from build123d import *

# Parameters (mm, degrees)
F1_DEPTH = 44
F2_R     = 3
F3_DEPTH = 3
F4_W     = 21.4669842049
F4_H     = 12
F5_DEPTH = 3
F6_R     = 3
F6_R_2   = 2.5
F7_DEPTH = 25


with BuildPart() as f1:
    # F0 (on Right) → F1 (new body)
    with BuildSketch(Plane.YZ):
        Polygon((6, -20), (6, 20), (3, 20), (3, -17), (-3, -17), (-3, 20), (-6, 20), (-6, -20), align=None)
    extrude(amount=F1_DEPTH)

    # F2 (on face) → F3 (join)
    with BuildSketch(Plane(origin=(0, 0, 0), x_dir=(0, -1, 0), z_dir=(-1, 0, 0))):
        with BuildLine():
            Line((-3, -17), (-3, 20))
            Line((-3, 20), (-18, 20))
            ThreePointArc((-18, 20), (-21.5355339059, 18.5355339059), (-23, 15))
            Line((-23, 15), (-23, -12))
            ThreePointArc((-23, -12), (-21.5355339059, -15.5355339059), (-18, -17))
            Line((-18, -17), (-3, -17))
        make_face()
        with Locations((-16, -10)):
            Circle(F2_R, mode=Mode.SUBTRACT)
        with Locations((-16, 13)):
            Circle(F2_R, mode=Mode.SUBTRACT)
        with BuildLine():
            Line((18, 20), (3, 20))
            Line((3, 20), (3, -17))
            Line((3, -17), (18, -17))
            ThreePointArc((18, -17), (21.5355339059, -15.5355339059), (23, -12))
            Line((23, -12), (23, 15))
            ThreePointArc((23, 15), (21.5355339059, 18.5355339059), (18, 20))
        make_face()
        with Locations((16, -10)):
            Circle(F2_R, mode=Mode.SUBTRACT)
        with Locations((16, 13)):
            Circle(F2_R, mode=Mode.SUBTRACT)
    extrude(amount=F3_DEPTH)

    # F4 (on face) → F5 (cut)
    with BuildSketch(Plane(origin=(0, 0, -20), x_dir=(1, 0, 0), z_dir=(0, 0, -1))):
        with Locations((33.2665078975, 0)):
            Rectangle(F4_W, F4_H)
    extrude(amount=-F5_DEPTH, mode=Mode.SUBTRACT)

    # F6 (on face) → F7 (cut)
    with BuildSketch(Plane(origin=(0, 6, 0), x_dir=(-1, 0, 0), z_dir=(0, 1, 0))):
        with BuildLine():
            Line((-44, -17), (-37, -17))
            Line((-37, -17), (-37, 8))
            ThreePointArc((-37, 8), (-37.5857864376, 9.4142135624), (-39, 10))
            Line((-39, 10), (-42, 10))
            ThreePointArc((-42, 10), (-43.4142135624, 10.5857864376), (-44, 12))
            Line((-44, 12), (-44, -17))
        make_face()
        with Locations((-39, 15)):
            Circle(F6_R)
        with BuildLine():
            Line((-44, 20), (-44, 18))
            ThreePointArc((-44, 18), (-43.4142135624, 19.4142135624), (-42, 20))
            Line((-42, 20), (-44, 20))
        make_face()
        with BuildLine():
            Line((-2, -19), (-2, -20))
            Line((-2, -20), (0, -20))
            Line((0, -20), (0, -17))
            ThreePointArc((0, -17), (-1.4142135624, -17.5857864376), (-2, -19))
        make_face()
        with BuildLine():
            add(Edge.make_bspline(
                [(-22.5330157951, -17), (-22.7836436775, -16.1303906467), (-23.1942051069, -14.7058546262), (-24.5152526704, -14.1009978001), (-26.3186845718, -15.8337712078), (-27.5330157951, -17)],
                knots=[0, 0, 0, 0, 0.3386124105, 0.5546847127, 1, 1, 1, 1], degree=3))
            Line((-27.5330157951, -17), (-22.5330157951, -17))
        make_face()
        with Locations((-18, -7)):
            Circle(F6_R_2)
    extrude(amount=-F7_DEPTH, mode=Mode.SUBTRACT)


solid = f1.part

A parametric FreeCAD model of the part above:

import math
import FreeCAD as App
import Part
import Sketcher

V = App.Vector

doc = App.newDocument("Part")
params = doc.addObject("Spreadsheet::Sheet", "Params")
for row, (alias, value) in enumerate([
    ("sketch1_width", "3 mm"),
    ("sketch1_width2", "6 mm"),
    ("sketch1_height", "40 mm"),
    ("sketch1_height2", "37 mm"),
    ("pad1_length", "44 mm"),
    ("sketch2_diameter", "6 mm"),
    ("sketch2_radius", "5 mm"),
    ("sketch2_width", "15 mm"),
    ("sketch2_height", "37 mm"),
    ("pad2_length", "3 mm"),
    ("sketch3_height", "12 mm"),
    ("pocket1_length", "3 mm"),
    ("sketch4_diameter", "6 mm"),
    ("sketch4_diameter2", "5 mm"),
    ("sketch4_radius", "2 mm"),
    ("sketch4_width", "7 mm"),
    ("sketch4_height", "25 mm"),
    ("pocket2_length", "25 mm"),
], start=1):
    params.set(f"A{row}", alias)
    params.set(f"B{row}", "=" + value)
    params.setAlias(f"B{row}", alias)

body = doc.addObject("PartDesign::Body", "Body")

# Sketch on YZ plane
sketch1 = body.newObject("Sketcher::SketchObject", "Sketch")
sketch1.AttachmentSupport = (doc.getObject("YZ_Plane"), [""])
sketch1.MapMode = "FlatFace"
sketch1.addGeometry([
    Part.LineSegment(V(6, -20, 0), V(6, 20, 0)),  # 0
    Part.LineSegment(V(6, 20, 0), V(3, 20, 0)),  # 1
    Part.LineSegment(V(3, 20, 0), V(3, -17, 0)),  # 2
    Part.LineSegment(V(3, -17, 0), V(-3, -17, 0)),  # 3
    Part.LineSegment(V(-3, -17, 0), V(-3, 20, 0)),  # 4
    Part.LineSegment(V(-3, 20, 0), V(-6, 20, 0)),  # 5
    Part.LineSegment(V(-6, 20, 0), V(-6, -20, 0)),  # 6
    Part.LineSegment(V(-6, -20, 0), V(6, -20, 0)),  # 7
], False)
sketch1.addConstraint([
    Sketcher.Constraint("Coincident", 0, 2, 1, 1),
    Sketcher.Constraint("Coincident", 1, 2, 2, 1),
    Sketcher.Constraint("Coincident", 2, 2, 3, 1),
    Sketcher.Constraint("Coincident", 3, 2, 4, 1),
    Sketcher.Constraint("Coincident", 4, 2, 5, 1),
    Sketcher.Constraint("Coincident", 5, 2, 6, 1),
    Sketcher.Constraint("Coincident", 6, 2, 7, 1),
    Sketcher.Constraint("Coincident", 7, 2, 0, 1),
    Sketcher.Constraint("Vertical", 0),
    Sketcher.Constraint("Horizontal", 1),
    Sketcher.Constraint("Vertical", 2),
    Sketcher.Constraint("Horizontal", 3),
    Sketcher.Constraint("Vertical", 4),
    Sketcher.Constraint("Horizontal", 5),
    Sketcher.Constraint("Vertical", 6),
    Sketcher.Constraint("Horizontal", 7),
    Sketcher.Constraint("Symmetric", 0, 2, 6, 2, -1, 1),
    Sketcher.Constraint("Symmetric", 1, 2, 4, 2, -2),
    Sketcher.Constraint("DistanceX", 1, 2, 1, 1, 3.0),
    Sketcher.Constraint("DistanceX", 3, 2, 3, 1, 6.0),
    Sketcher.Constraint("DistanceY", 0, 1, 0, 2, 40.0),
    Sketcher.Constraint("DistanceY", 2, 2, 2, 1, 37.0),
])
sketch1.setExpression("Constraints[18]", "Params.sketch1_width")
sketch1.setExpression("Constraints[19]", "Params.sketch1_width2")
sketch1.setExpression("Constraints[20]", "Params.sketch1_height")
sketch1.setExpression("Constraints[21]", "Params.sketch1_height2")
pad1 = body.newObject("PartDesign::Pad", "Pad")
pad1.Profile = sketch1
pad1.setExpression("Length", "Params.pad1_length")

# Sketch on YZ plane
sketch2 = body.newObject("Sketcher::SketchObject", "Sketch001")
sketch2.AttachmentSupport = (doc.getObject("YZ_Plane"), [""])
sketch2.MapMode = "FlatFace"
sketch2.addGeometry([
    Part.LineSegment(V(3, -17, 0), V(3, 20, 0)),  # 0
    Part.LineSegment(V(3, 20, 0), V(18, 20, 0)),  # 1
    Part.ArcOfCircle(Part.Circle(V(18, 15, 0), V(0, 0, 1), 5), math.radians(0), math.radians(90)),  # 2
    Part.LineSegment(V(23, 15, 0), V(23, -12, 0)),  # 3
    Part.ArcOfCircle(Part.Circle(V(18, -12, 0), V(0, 0, 1), 5), math.radians(-90), math.radians(0)),  # 4
    Part.LineSegment(V(18, -17, 0), V(3, -17, 0)),  # 5
    Part.Circle(V(16, -10, 0), V(0, 0, 1), 3),  # 6
    Part.Circle(V(16, 13, 0), V(0, 0, 1), 3),  # 7
    Part.LineSegment(V(-18, 20, 0), V(-3, 20, 0)),  # 8
    Part.LineSegment(V(-3, 20, 0), V(-3, -17, 0)),  # 9
    Part.LineSegment(V(-3, -17, 0), V(-18, -17, 0)),  # 10
    Part.ArcOfCircle(Part.Circle(V(-18, -12, 0), V(0, 0, 1), 5), math.radians(180), math.radians(270)),  # 11
    Part.LineSegment(V(-23, -12, 0), V(-23, 15, 0)),  # 12
    Part.ArcOfCircle(Part.Circle(V(-18, 15, 0), V(0, 0, 1), 5), math.radians(90), math.radians(180)),  # 13
    Part.Circle(V(-16, -10, 0), V(0, 0, 1), 3),  # 14
    Part.Circle(V(-16, 13, 0), V(0, 0, 1), 3),  # 15
], False)
sketch2.addConstraint([
    Sketcher.Constraint("Coincident", 0, 2, 1, 1),
    Sketcher.Constraint("Tangent", 1, 2, 2, 2),
    Sketcher.Constraint("Tangent", 2, 1, 3, 1),
    Sketcher.Constraint("Tangent", 3, 2, 4, 2),
    Sketcher.Constraint("Tangent", 4, 1, 5, 1),
    Sketcher.Constraint("Coincident", 5, 2, 0, 1),
    Sketcher.Constraint("Coincident", 8, 2, 9, 1),
    Sketcher.Constraint("Coincident", 9, 2, 10, 1),
    Sketcher.Constraint("Tangent", 10, 2, 11, 2),
    Sketcher.Constraint("Tangent", 11, 1, 12, 1),
    Sketcher.Constraint("Tangent", 12, 2, 13, 2),
    Sketcher.Constraint("Tangent", 13, 1, 8, 1),
    Sketcher.Constraint("Vertical", 0),
    Sketcher.Constraint("Horizontal", 1),
    Sketcher.Constraint("Vertical", 3),
    Sketcher.Constraint("Horizontal", 5),
    Sketcher.Constraint("Horizontal", 8),
    Sketcher.Constraint("Vertical", 9),
    Sketcher.Constraint("Horizontal", 10),
    Sketcher.Constraint("Vertical", 12),
    Sketcher.Constraint("Equal", 2, 4),
    Sketcher.Constraint("Equal", 6, 7),
    Sketcher.Constraint("Equal", 4, 11),
    Sketcher.Constraint("Equal", 11, 13),
    Sketcher.Constraint("Equal", 7, 14),
    Sketcher.Constraint("Equal", 14, 15),
    Sketcher.Constraint("Symmetric", 4, 3, 11, 3, -2),
    Sketcher.Constraint("Symmetric", 6, 3, 14, 3, -2),
    Sketcher.Constraint("Symmetric", 7, 3, 15, 3, -2),
    Sketcher.Constraint("Symmetric", 0, 2, 8, 2, -2),
    Sketcher.Constraint("Vertical", 6, 3, 7, 3),
    Sketcher.Constraint("Diameter", 6, 6.0),
    Sketcher.Constraint("Radius", 2, 5.0),
    Sketcher.Constraint("DistanceX", 1, 1, 1, 2, 15.0),
    Sketcher.Constraint("DistanceY", 0, 1, 0, 2, 37.0),
    Sketcher.Constraint("DistanceX", -1, 1, 2, 3, 18.0),
    Sketcher.Constraint("DistanceY", -1, 1, 2, 3, 15.0),
    Sketcher.Constraint("DistanceX", -1, 1, 6, 3, 16.0),
    Sketcher.Constraint("DistanceY", 6, 3, -1, 1, 10.0),
    Sketcher.Constraint("DistanceY", -1, 1, 7, 3, 13.0),
])
sketch2.setExpression("Constraints[31]", "Params.sketch2_diameter")
sketch2.setExpression("Constraints[32]", "Params.sketch2_radius")
sketch2.setExpression("Constraints[33]", "Params.sketch2_width")
sketch2.setExpression("Constraints[34]", "Params.sketch2_height")
pad2 = body.newObject("PartDesign::Pad", "Pad001")
pad2.Profile = sketch2
pad2.setExpression("Length", "Params.pad2_length")
pad2.Reversed = True

# Sketch on XY plane
sketch3 = body.newObject("Sketcher::SketchObject", "Sketch002")
sketch3.AttachmentSupport = (doc.getObject("XY_Plane"), [""])
sketch3.MapMode = "FlatFace"
sketch3.AttachmentOffset = App.Placement(V(0, 0, -20), App.Rotation())
sketch3.addGeometry([
    Part.LineSegment(V(23, -6, 0), V(23, 6, 0)),
    Part.LineSegment(V(23, 6, 0), V(44, 6, 0)),
    Part.LineSegment(V(44, 6, 0), V(44, -6, 0)),
    Part.LineSegment(V(44, -6, 0), V(23, -6, 0)),
], False)
sketch3.addConstraint([
    Sketcher.Constraint("Coincident", 0, 2, 1, 1),
    Sketcher.Constraint("Coincident", 1, 2, 2, 1),
    Sketcher.Constraint("Coincident", 2, 2, 3, 1),
    Sketcher.Constraint("Coincident", 3, 2, 0, 1),
    Sketcher.Constraint("Vertical", 0),
    Sketcher.Constraint("Horizontal", 1),
    Sketcher.Constraint("Vertical", 2),
    Sketcher.Constraint("Horizontal", 3),
    Sketcher.Constraint("DistanceY", 0, 1, 0, 2, 12.0),
    Sketcher.Constraint("DistanceY", -1, 1, 0, 2, 6.0),
    Sketcher.Constraint("DistanceX", -1, 1, 1, 2, 44.0),
    Sketcher.Constraint("DistanceX", 1, 1, 1, 2, 21.466984),
])
sketch3.setExpression("Constraints[8]", "Params.sketch3_height")
pocket1 = body.newObject("PartDesign::Pocket", "Pocket")
pocket1.Profile = sketch3
pocket1.setExpression("Length", "Params.pocket1_length")
pocket1.Reversed = True

# Sketch on XZ plane
sketch4 = body.newObject("Sketcher::SketchObject", "Sketch003")
sketch4.AttachmentSupport = (doc.getObject("XZ_Plane"), [""])
sketch4.MapMode = "FlatFace"
sketch4.AttachmentOffset = App.Placement(V(0, 0, -6), App.Rotation())
sketch4.addGeometry([
    Part.LineSegment(V(44, -17, 0), V(37, -17, 0)),  # 0
    Part.LineSegment(V(37, -17, 0), V(37, 8, 0)),  # 1
    Part.ArcOfCircle(Part.Circle(V(39, 8, 0), V(0, 0, 1), 2), math.radians(90), math.radians(180)),  # 2
    Part.LineSegment(V(39, 10, 0), V(42, 10, 0)),  # 3
    Part.ArcOfCircle(Part.Circle(V(42, 12, 0), V(0, 0, 1), 2), math.radians(-90), math.radians(0)),  # 4
    Part.LineSegment(V(44, 12, 0), V(44, -17, 0)),  # 5
    Part.Circle(V(39, 15, 0), V(0, 0, 1), 3),  # 6
    Part.LineSegment(V(44, 20, 0), V(44, 18, 0)),  # 7
    Part.ArcOfCircle(Part.Circle(V(42, 18, 0), V(0, 0, 1), 2), math.radians(0), math.radians(90)),  # 8
    Part.LineSegment(V(42, 20, 0), V(44, 20, 0)),  # 9
    Part.LineSegment(V(2, -19, 0), V(2, -20, 0)),  # 10
    Part.LineSegment(V(2, -20, 0), V(0, -20, 0)),  # 11
    Part.LineSegment(V(0, -20, 0), V(0, -17, 0)),  # 12
    Part.ArcOfCircle(Part.Circle(V(0, -19, 0), V(0, 0, 1), 2), math.radians(0), math.radians(90)),  # 13
    Part.BSplineCurve([V(22.533016, -17, 0), V(22.783644, -16.130391, 0), V(23.194205, -14.705855, 0), V(24.515253, -14.100998, 0), V(26.318685, -15.833771, 0), V(27.533016, -17, 0)], [4, 1, 1, 4], [0, 0.338612411, 0.554684713, 1], False, 3, [1, 1, 1, 1, 1, 1], False),  # 14
    Part.LineSegment(V(27.533016, -17, 0), V(22.533016, -17, 0)),  # 15
    Part.Circle(V(18, -7, 0), V(0, 0, 1), 2.5),  # 16
], False)
sketch4.addConstraint([
    Sketcher.Constraint("Block", 14),
    Sketcher.Constraint("Coincident", 0, 2, 1, 1),
    Sketcher.Constraint("Tangent", 1, 2, 2, 2),
    Sketcher.Constraint("Tangent", 2, 1, 3, 1),
    Sketcher.Constraint("Tangent", 3, 2, 4, 1),
    Sketcher.Constraint("Tangent", 4, 2, 5, 1),
    Sketcher.Constraint("Coincident", 5, 2, 0, 1),
    Sketcher.Constraint("Tangent", 7, 2, 8, 1),
    Sketcher.Constraint("Tangent", 8, 2, 9, 1),
    Sketcher.Constraint("Coincident", 9, 2, 7, 1),
    Sketcher.Constraint("Coincident", 10, 2, 11, 1),
    Sketcher.Constraint("Coincident", 11, 2, 12, 1),
    Sketcher.Constraint("Coincident", 12, 2, 13, 2),
    Sketcher.Constraint("Tangent", 13, 1, 10, 1),
    Sketcher.Constraint("Coincident", 14, 1, 15, 2),
    Sketcher.Constraint("Coincident", 15, 1, 14, 2),
    Sketcher.Constraint("Horizontal", 0),
    Sketcher.Constraint("Vertical", 1),
    Sketcher.Constraint("Horizontal", 3),
    Sketcher.Constraint("Vertical", 5),
    Sketcher.Constraint("Vertical", 7),
    Sketcher.Constraint("Horizontal", 9),
    Sketcher.Constraint("Vertical", 10),
    Sketcher.Constraint("Horizontal", 11),
    Sketcher.Constraint("Vertical", 12),
    Sketcher.Constraint("Equal", 2, 4),
    Sketcher.Constraint("Equal", 4, 8),
    Sketcher.Constraint("Equal", 8, 13),
    Sketcher.Constraint("PointOnObject", 13, 3, -2),
    Sketcher.Constraint("PointOnObject", 11, 2, -2),
    Sketcher.Constraint("Horizontal", 5, 2, 12, 2),
    Sketcher.Constraint("Horizontal", 12, 2, 15, 1),
    Sketcher.Constraint("Vertical", 2, 3, 6, 3),
    Sketcher.Constraint("Vertical", 4, 3, 8, 3),
    Sketcher.Constraint("Equal", 3, 12),
    Sketcher.Constraint("Diameter", 6, 6.0),
    Sketcher.Constraint("Diameter", 16, 5.0),
    Sketcher.Constraint("Radius", 2, 2.0),
    Sketcher.Constraint("DistanceX", 0, 2, 0, 1, 7.0),
    Sketcher.Constraint("DistanceY", 1, 1, 1, 2, 25.0),
    Sketcher.Constraint("DistanceX", -1, 1, 2, 3, 39.0),
    Sketcher.Constraint("DistanceY", -1, 1, 6, 3, 15.0),
    Sketcher.Constraint("DistanceY", -1, 1, 8, 3, 18.0),
    Sketcher.Constraint("DistanceX", -1, 1, 16, 3, 18.0),
    Sketcher.Constraint("DistanceY", 16, 3, -1, 1, 7.0),
])
sketch4.setExpression("Constraints[35]", "Params.sketch4_diameter")
sketch4.setExpression("Constraints[36]", "Params.sketch4_diameter2")
sketch4.setExpression("Constraints[37]", "Params.sketch4_radius")
sketch4.setExpression("Constraints[38]", "Params.sketch4_width")
sketch4.setExpression("Constraints[39]", "Params.sketch4_height")
pocket2 = body.newObject("PartDesign::Pocket", "Pocket001")
pocket2.Profile = sketch4
pocket2.setExpression("Length", "Params.pocket2_length")
pocket2.Reversed = True

doc.recompute()
